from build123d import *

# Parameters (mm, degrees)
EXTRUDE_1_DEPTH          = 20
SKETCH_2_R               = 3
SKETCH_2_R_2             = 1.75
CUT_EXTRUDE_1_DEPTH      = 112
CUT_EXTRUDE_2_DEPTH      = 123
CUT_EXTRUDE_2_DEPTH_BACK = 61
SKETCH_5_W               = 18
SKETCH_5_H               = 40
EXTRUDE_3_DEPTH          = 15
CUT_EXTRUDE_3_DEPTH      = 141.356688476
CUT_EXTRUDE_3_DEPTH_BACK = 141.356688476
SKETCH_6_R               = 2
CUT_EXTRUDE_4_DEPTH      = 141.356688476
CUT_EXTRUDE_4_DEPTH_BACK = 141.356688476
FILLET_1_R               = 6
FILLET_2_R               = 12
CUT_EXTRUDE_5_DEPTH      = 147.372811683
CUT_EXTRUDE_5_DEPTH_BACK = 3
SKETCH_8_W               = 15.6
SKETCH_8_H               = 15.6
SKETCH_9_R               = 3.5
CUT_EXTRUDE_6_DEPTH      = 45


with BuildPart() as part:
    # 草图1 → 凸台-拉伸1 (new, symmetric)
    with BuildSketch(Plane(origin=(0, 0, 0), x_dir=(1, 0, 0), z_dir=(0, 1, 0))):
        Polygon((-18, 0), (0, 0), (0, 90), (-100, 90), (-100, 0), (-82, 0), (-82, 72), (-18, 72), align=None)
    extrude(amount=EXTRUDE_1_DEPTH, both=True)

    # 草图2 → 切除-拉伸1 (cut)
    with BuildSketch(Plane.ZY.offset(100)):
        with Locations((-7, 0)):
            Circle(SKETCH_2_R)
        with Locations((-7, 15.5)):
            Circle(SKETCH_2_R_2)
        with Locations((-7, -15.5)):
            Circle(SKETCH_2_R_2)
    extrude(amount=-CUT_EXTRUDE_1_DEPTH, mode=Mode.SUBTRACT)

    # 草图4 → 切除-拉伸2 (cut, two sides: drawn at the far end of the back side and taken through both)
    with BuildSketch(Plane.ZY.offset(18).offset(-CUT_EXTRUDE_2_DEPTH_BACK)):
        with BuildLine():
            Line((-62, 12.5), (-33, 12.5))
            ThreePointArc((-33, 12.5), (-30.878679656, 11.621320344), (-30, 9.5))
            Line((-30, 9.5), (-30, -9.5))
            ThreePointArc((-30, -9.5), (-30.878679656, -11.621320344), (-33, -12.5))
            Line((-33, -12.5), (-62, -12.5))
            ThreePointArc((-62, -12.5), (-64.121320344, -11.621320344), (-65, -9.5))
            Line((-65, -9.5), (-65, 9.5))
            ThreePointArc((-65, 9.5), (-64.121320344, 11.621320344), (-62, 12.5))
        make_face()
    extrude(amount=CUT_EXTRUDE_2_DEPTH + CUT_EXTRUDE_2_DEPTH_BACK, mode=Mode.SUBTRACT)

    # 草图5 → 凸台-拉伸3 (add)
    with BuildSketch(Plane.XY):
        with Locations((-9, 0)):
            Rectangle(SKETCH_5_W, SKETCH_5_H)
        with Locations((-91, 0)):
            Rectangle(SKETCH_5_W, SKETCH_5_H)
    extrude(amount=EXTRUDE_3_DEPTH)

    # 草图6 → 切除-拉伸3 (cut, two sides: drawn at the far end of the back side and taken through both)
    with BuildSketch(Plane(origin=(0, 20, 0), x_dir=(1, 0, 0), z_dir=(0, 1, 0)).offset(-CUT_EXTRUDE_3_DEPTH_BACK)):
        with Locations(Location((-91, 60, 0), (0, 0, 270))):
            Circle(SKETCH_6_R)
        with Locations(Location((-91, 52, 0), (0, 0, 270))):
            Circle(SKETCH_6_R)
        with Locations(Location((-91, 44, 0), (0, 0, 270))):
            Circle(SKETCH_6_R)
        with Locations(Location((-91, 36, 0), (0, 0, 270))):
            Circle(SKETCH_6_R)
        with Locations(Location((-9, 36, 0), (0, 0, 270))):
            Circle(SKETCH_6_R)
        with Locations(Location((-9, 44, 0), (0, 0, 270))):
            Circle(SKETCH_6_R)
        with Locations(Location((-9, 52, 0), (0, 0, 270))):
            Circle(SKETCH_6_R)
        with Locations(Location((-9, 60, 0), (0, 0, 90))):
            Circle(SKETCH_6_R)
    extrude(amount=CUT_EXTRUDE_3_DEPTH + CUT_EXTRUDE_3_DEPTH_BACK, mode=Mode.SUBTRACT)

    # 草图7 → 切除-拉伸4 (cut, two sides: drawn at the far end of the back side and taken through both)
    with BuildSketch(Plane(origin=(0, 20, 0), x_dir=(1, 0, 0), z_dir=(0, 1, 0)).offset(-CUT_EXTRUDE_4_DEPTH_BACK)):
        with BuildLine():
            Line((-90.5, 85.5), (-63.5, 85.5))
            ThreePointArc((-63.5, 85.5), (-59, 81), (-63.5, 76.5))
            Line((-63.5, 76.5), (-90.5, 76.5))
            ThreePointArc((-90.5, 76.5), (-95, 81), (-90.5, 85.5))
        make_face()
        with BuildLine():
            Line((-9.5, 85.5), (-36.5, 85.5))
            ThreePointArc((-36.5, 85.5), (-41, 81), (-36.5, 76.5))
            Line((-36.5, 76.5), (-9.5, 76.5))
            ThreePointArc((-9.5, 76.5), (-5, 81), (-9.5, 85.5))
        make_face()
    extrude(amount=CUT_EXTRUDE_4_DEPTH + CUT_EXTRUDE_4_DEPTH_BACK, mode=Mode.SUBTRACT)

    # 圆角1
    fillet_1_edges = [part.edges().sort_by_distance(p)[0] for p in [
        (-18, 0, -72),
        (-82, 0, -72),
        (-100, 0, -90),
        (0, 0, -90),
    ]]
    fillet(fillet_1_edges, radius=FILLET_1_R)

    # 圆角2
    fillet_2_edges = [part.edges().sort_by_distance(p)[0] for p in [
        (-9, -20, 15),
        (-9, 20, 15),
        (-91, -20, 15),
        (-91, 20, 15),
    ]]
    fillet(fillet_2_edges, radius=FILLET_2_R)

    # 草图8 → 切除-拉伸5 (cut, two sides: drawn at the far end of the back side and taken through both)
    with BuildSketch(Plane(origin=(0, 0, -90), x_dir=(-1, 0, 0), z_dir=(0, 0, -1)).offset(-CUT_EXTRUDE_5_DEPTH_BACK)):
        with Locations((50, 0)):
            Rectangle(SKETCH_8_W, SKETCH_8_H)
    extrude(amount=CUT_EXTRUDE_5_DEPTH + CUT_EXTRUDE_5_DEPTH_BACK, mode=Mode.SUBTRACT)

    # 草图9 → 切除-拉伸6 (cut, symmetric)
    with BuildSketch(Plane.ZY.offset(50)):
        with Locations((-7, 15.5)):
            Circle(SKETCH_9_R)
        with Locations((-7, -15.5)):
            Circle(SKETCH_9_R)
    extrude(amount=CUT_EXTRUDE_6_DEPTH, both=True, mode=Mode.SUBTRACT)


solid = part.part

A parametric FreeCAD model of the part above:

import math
import FreeCAD as App
import Part
import Sketcher
from FreeCAD import Vector


def edges_at(feature, points):
    """Names of the edges that pass closest to the given points."""
    edges = feature.Shape.Edges
    near = lambda p: min(range(len(edges)), key=lambda i: edges[i].distToShape(Part.Vertex(*p))[0])
    return sorted({f"Edge{near(p) + 1}" for p in points})

doc = App.newDocument("Part")
body = doc.addObject("PartDesign::Body", "Body")

sketch1 = body.newObject("Sketcher::SketchObject", "Sketch")
sketch1.AttachmentSupport = (doc.getObject("XZ_Plane"), [""])
sketch1.MapMode = "FlatFace"
sketch1.addGeometry(Part.LineSegment(Vector(-18, 0, 0), Vector(0, 0, 0)), False)
sketch1.addGeometry(Part.LineSegment(Vector(0, 0, 0), Vector(0, -90, 0)), False)
sketch1.addGeometry(Part.LineSegment(Vector(0, -90, 0), Vector(-100, -90, 0)), False)
sketch1.addGeometry(Part.LineSegment(Vector(-100, -90, 0), Vector(-100, 0, 0)), False)
sketch1.addGeometry(Part.LineSegment(Vector(-100, 0, 0), Vector(-82, 0, 0)), False)
sketch1.addGeometry(Part.LineSegment(Vector(-82, 0, 0), Vector(-82, -72, 0)), False)
sketch1.addGeometry(Part.LineSegment(Vector(-82, -72, 0), Vector(-18, -72, 0)), False)
sketch1.addGeometry(Part.LineSegment(Vector(-18, -72, 0), Vector(-18, 0, 0)), False)
sketch1.addConstraint(Sketcher.Constraint("Coincident", 0, 2, 1, 1))
sketch1.addConstraint(Sketcher.Constraint("Coincident", 1, 2, 2, 1))
sketch1.addConstraint(Sketcher.Constraint("Coincident", 2, 2, 3, 1))
sketch1.addConstraint(Sketcher.Constraint("Coincident", 3, 2, 4, 1))
sketch1.addConstraint(Sketcher.Constraint("Coincident", 4, 2, 5, 1))
sketch1.addConstraint(Sketcher.Constraint("Coincident", 5, 2, 6, 1))
sketch1.addConstraint(Sketcher.Constraint("Coincident", 6, 2, 7, 1))
sketch1.addConstraint(Sketcher.Constraint("Coincident", 7, 2, 0, 1))
sketch1.addConstraint(Sketcher.Constraint("Horizontal", 0))
sketch1.addConstraint(Sketcher.Constraint("Vertical", 1))
sketch1.addConstraint(Sketcher.Constraint("Horizontal", 2))
sketch1.addConstraint(Sketcher.Constraint("Vertical", 3))
sketch1.addConstraint(Sketcher.Constraint("Horizontal", 4))
sketch1.addConstraint(Sketcher.Constraint("Vertical", 5))
sketch1.addConstraint(Sketcher.Constraint("Horizontal", 6))
sketch1.addConstraint(Sketcher.Constraint("Vertical", 7))
sketch1.addConstraint(Sketcher.Constraint("Coincident", 0, 2, -1, 1))
sketch1.addConstraint(Sketcher.Constraint("PointOnObject", 3, 2, -1))
sketch1.addConstraint(Sketcher.Constraint("Equal", 0, 4))
sketch1.addConstraint(Sketcher.Constraint("DistanceX", 0, 1, 0, 2, 18.0))
sketch1.addConstraint(Sketcher.Constraint("DistanceX", 2, 2, 2, 1, 100.0))
sketch1.addConstraint(Sketcher.Constraint("DistanceY", 1, 2, 1, 1, 90.0))
sketch1.addConstraint(Sketcher.Constraint("DistanceY", 5, 2, 5, 1, 72.0))
pad1 = body.newObject("PartDesign::Pad", "Pad")
pad1.Profile = sketch1
pad1.Length = 40
pad1.Midplane = True

sketch2 = body.newObject("Sketcher::SketchObject", "Sketch001")
sketch2.AttachmentSupport = (doc.getObject("YZ_Plane"), [""])
sketch2.MapMode = "FlatFace"
sketch2.AttachmentOffset = App.Placement(Vector(0, 0, -100), App.Rotation())
sketch2.addGeometry(Part.Circle(Vector(0, -7, 0), Vector(0, 0, 1), 3), False)
sketch2.addGeometry(Part.Circle(Vector(15.5, -7, 0), Vector(0, 0, 1), 1.8), False)
sketch2.addGeometry(Part.Circle(Vector(-15.5, -7, 0), Vector(0, 0, 1), 1.8), False)
sketch2.addConstraint(Sketcher.Constraint("Equal", 1, 2))
sketch2.addConstraint(Sketcher.Constraint("Symmetric", 1, 3, 2, 3, -2))
sketch2.addConstraint(Sketcher.Constraint("PointOnObject", 0, 3, -2))
sketch2.addConstraint(Sketcher.Constraint("Horizontal", 0, 3, 1, 3))
sketch2.addConstraint(Sketcher.Constraint("Diameter", 0, 6.0))
sketch2.addConstraint(Sketcher.Constraint("Diameter", 1, 3.5))
sketch2.addConstraint(Sketcher.Constraint("DistanceY", 0, 3, -1, 1, 7.0))
sketch2.addConstraint(Sketcher.Constraint("DistanceX", 2, 3, 1, 3, 31.0))
pocket1 = body.newObject("PartDesign::Pocket", "Pocket")
pocket1.Profile = sketch2
pocket1.Length = 112
pocket1.Reversed = True

sketch3 = body.newObject("Sketcher::SketchObject", "Sketch002")
sketch3.AttachmentSupport = (doc.getObject("YZ_Plane"), [""])
sketch3.MapMode = "FlatFace"
sketch3.AttachmentOffset = App.Placement(Vector(0, 0, -18), App.Rotation())
sketch3.addGeometry(Part.LineSegment(Vector(12.5, -33, 0), Vector(12.5, -62, 0)), False)
sketch3.addGeometry(Part.ArcOfCircle(Part.Circle(Vector(9.5, -62, 0), Vector(0, 0, 1), 3), math.radians(-90), math.radians(0)), False)
sketch3.addGeometry(Part.LineSegment(Vector(9.5, -65, 0), Vector(-9.5, -65, 0)), False)
sketch3.addGeometry(Part.ArcOfCircle(Part.Circle(Vector(-9.5, -62, 0), Vector(0, 0, 1), 3), math.radians(180), math.radians(270)), False)
sketch3.addGeometry(Part.LineSegment(Vector(-12.5, -62, 0), Vector(-12.5, -33, 0)), False)
sketch3.addGeometry(Part.ArcOfCircle(Part.Circle(Vector(-9.5, -33, 0), Vector(0, 0, 1), 3), math.radians(90), math.radians(180)), False)
sketch3.addGeometry(Part.LineSegment(Vector(-9.5, -30, 0), Vector(9.5, -30, 0)), False)
sketch3.addGeometry(Part.ArcOfCircle(Part.Circle(Vector(9.5, -33, 0), Vector(0, 0, 1), 3), math.radians(0), math.radians(90)), False)
sketch3.addConstraint(Sketcher.Constraint("Tangent", 0, 2, 1, 2))
sketch3.addConstraint(Sketcher.Constraint("Tangent", 1, 1, 2, 1))
sketch3.addConstraint(Sketcher.Constraint("Tangent", 2, 2, 3, 2))
sketch3.addConstraint(Sketcher.Constraint("Tangent", 3, 1, 4, 1))
sketch3.addConstraint(Sketcher.Constraint("Tangent", 4, 2, 5, 2))
sketch3.addConstraint(Sketcher.Constraint("Tangent", 5, 1, 6, 1))
sketch3.addConstraint(Sketcher.Constraint("Tangent", 6, 2, 7, 2))
sketch3.addConstraint(Sketcher.Constraint("Tangent", 7, 1, 0, 1))
sketch3.addConstraint(Sketcher.Constraint("Vertical", 0))
sketch3.addConstraint(Sketcher.Constraint("Horizontal", 2))
sketch3.addConstraint(Sketcher.Constraint("Vertical", 4))
sketch3.addConstraint(Sketcher.Constraint("Horizontal", 6))
sketch3.addConstraint(Sketcher.Constraint("Equal", 1, 3))
sketch3.addConstraint(Sketcher.Constraint("Equal", 3, 5))
sketch3.addConstraint(Sketcher.Constraint("Equal", 5, 7))
sketch3.addConstraint(Sketcher.Constraint("Radius", 1, 3.0))
sketch3.addConstraint(Sketcher.Constraint("DistanceX", 2, 2, 2, 1, 19.0))
sketch3.addConstraint(Sketcher.Constraint("DistanceY", 0, 2, 0, 1, 29.0))
sketch3.addConstraint(Sketcher.Constraint("DistanceY", 1, 3, -1, 1, 62.0))
sketch3.addConstraint(Sketcher.Constraint("DistanceX", -1, 1, 1, 3, 9.5))
pocket2 = body.newObject("PartDesign::Pocket", "Pocket001")
pocket2.Profile = sketch3
pocket2.Type = "ThroughAll"
pocket2.Midplane = True

sketch4 = body.newObject("Sketcher::SketchObject", "Sketch003")
sketch4.AttachmentSupport = (doc.getObject("XY_Plane"), [""])
sketch4.MapMode = "FlatFace"
sketch4.addGeometry(Part.LineSegment(Vector(-18, 20, 0), Vector(-18, -20, 0)), False)
sketch4.addGeometry(Part.LineSegment(Vector(-18, -20, 0), Vector(0, -20, 0)), False)
sketch4.addGeometry(Part.LineSegment(Vector(0, -20, 0), Vector(0, 20, 0)), False)
sketch4.addGeometry(Part.LineSegment(Vector(0, 20, 0), Vector(-18, 20, 0)), False)
sketch4.addGeometry(Part.LineSegment(Vector(-100, 20, 0), Vector(-100, -20, 0)), False)
sketch4.addGeometry(Part.LineSegment(Vector(-100, -20, 0), Vector(-82, -20, 0)), False)
sketch4.addGeometry(Part.LineSegment(Vector(-82, -20, 0), Vector(-82, 20, 0)), False)
sketch4.addGeometry(Part.LineSegment(Vector(-82, 20, 0), Vector(-100, 20, 0)), False)
sketch4.addConstraint(Sketcher.Constraint("Coincident", 0, 2, 1, 1))
sketch4.addConstraint(Sketcher.Constraint("Coincident", 1, 2, 2, 1))
sketch4.addConstraint(Sketcher.Constraint("Coincident", 2, 2, 3, 1))
sketch4.addConstraint(Sketcher.Constraint("Coincident", 3, 2, 0, 1))
sketch4.addConstraint(Sketcher.Constraint("Coincident", 4, 2, 5, 1))
sketch4.addConstraint(Sketcher.Constraint("Coincident", 5, 2, 6, 1))
sketch4.addConstraint(Sketcher.Constraint("Coincident", 6, 2, 7, 1))
sketch4.addConstraint(Sketcher.Constraint("Coincident", 7, 2, 4, 1))
sketch4.addConstraint(Sketcher.Constraint("Vertical", 0))
sketch4.addConstraint(Sketcher.Constraint("Horizontal", 1))
sketch4.addConstraint(Sketcher.Constraint("Vertical", 2))
sketch4.addConstraint(Sketcher.Constraint("Horizontal", 3))
sketch4.addConstraint(Sketcher.Constraint("Vertical", 4))
sketch4.addConstraint(Sketcher.Constraint("Horizontal", 5))
sketch4.addConstraint(Sketcher.Constraint("Vertical", 6))
sketch4.addConstraint(Sketcher.Constraint("Horizontal", 7))
sketch4.addConstraint(Sketcher.Constraint("Symmetric", 1, 2, 2, 2, -1, 1))
sketch4.addConstraint(Sketcher.Constraint("Horizontal", 1, 2, 4, 2))
sketch4.addConstraint(Sketcher.Constraint("Horizontal", 3, 2, 6, 2))
sketch4.addConstraint(Sketcher.Constraint("Equal", 3, 5))
sketch4.addConstraint(Sketcher.Constraint("DistanceX", 1, 1, 1, 2, 18.0))
sketch4.addConstraint(Sketcher.Constraint("DistanceY", 0, 2, 0, 1, 40.0))
sketch4.addConstraint(Sketcher.Constraint("DistanceX", 4, 2, -1, 1, 100.0))
pad2 = body.newObject("PartDesign::Pad", "Pad001")
pad2.Profile = sketch4
pad2.Length = 15

sketch5 = body.newObject("Sketcher::SketchObject", "Sketch004")
sketch5.AttachmentSupport = (doc.getObject("XZ_Plane"), [""])
sketch5.MapMode = "FlatFace"
sketch5.AttachmentOffset = App.Placement(Vector(0, 0, -20), App.Rotation())
sketch5.addGeometry(Part.Circle(Vector(-91, -60, 0), Vector(0, 0, 1), 2), False)
sketch5.addGeometry(Part.Circle(Vector(-91, -52, 0), Vector(0, 0, 1), 2), False)
sketch5.addGeometry(Part.Circle(Vector(-91, -44, 0), Vector(0, 0, 1), 2), False)
sketch5.addGeometry(Part.Circle(Vector(-91, -36, 0), Vector(0, 0, 1), 2), False)
sketch5.addGeometry(Part.Circle(Vector(-9, -36, 0), Vector(0, 0, 1), 2), False)
sketch5.addGeometry(Part.Circle(Vector(-9, -44, 0), Vector(0, 0, 1), 2), False)
sketch5.addGeometry(Part.Circle(Vector(-9, -52, 0), Vector(0, 0, 1), 2), False)
sketch5.addGeometry(Part.Circle(Vector(-9, -60, 0), Vector(0, 0, 1), 2), False)
sketch5.addConstraint(Sketcher.Constraint("Equal", 0, 1))
sketch5.addConstraint(Sketcher.Constraint("Equal", 1, 2))
sketch5.addConstraint(Sketcher.Constraint("Equal", 2, 3))
sketch5.addConstraint(Sketcher.Constraint("Equal", 3, 4))
sketch5.addConstraint(Sketcher.Constraint("Equal", 4, 5))
sketch5.addConstraint(Sketcher.Constraint("Equal", 5, 6))
sketch5.addConstraint(Sketcher.Constraint("Equal", 6, 7))
sketch5.addConstraint(Sketcher.Constraint("Horizontal", 3, 3, 4, 3))
sketch5.addConstraint(Sketcher.Constraint("Horizontal", 2, 3, 5, 3))
sketch5.addConstraint(Sketcher.Constraint("Horizontal", 1, 3, 6, 3))
sketch5.addConstraint(Sketcher.Constraint("Horizontal", 0, 3, 7, 3))
sketch5.addConstraint(Sketcher.Constraint("Vertical", 0, 3, 1, 3))
sketch5.addConstraint(Sketcher.Constraint("Vertical", 1, 3, 2, 3))
sketch5.addConstraint(Sketcher.Constraint("Vertical", 2, 3, 3, 3))
sketch5.addConstraint(Sketcher.Constraint("Vertical", 4, 3, 5, 3))
sketch5.addConstraint(Sketcher.Constraint("Vertical", 5, 3, 6, 3))
sketch5.addConstraint(Sketcher.Constraint("Vertical", 6, 3, 7, 3))
sketch5.addConstraint(Sketcher.Constraint("Diameter", 0, 4.0))
sketch5.addConstraint(Sketcher.Constraint("DistanceX", 0, 3, -1, 1, 91.0))
sketch5.addConstraint(Sketcher.Constraint("DistanceY", 0, 3, -1, 1, 60.0))
sketch5.addConstraint(Sketcher.Constraint("DistanceY", 1, 3, -1, 1, 52.0))
sketch5.addConstraint(Sketcher.Constraint("DistanceY", 2, 3, -1, 1, 44.0))
sketch5.addConstraint(Sketcher.Constraint("DistanceY", 3, 3, -1, 1, 36.0))
sketch5.addConstraint(Sketcher.Constraint("DistanceX", 4, 3, -1, 1, 9.0))
pocket3 = body.newObject("PartDesign::Pocket", "Pocket002")
pocket3.Profile = sketch5
pocket3.Type = "ThroughAll"
pocket3.Midplane = True

sketch6 = body.newObject("Sketcher::SketchObject", "Sketch005")
sketch6.AttachmentSupport = (doc.getObject("XZ_Plane"), [""])
sketch6.MapMode = "FlatFace"
sketch6.AttachmentOffset = App.Placement(Vector(0, 0, -20), App.Rotation())
sketch6.addGeometry(Part.LineSegment(Vector(-63.5, -85.5, 0), Vector(-90.5, -85.5, 0)), False)
sketch6.addGeometry(Part.ArcOfCircle(Part.Circle(Vector(-90.5, -81, 0), Vector(0, 0, 1), 4.5), math.radians(90), math.radians(270)), False)
sketch6.addGeometry(Part.LineSegment(Vector(-90.5, -76.5, 0), Vector(-63.5, -76.5, 0)), False)
sketch6.addGeometry(Part.ArcOfCircle(Part.Circle(Vector(-63.5, -81, 0), Vector(0, 0, 1), 4.5), math.radians(-90), math.radians(90)), False)
sketch6.addGeometry(Part.LineSegment(Vector(-9.5, -85.5, 0), Vector(-36.5, -85.5, 0)), False)
sketch6.addGeometry(Part.ArcOfCircle(Part.Circle(Vector(-36.5, -81, 0), Vector(0, 0, 1), 4.5), math.radians(90), math.radians(270)), False)
sketch6.addGeometry(Part.LineSegment(Vector(-36.5, -76.5, 0), Vector(-9.5, -76.5, 0)), False)
sketch6.addGeometry(Part.ArcOfCircle(Part.Circle(Vector(-9.5, -81, 0), Vector(0, 0, 1), 4.5), math.radians(-90), math.radians(90)), False)
sketch6.addConstraint(Sketcher.Constraint("Tangent", 0, 2, 1, 2))
sketch6.addConstraint(Sketcher.Constraint("Tangent", 1, 1, 2, 1))
sketch6.addConstraint(Sketcher.Constraint("Tangent", 2, 2, 3, 2))
sketch6.addConstraint(Sketcher.Constraint("Tangent", 3, 1, 0, 1))
sketch6.addConstraint(Sketcher.Constraint("Tangent", 4, 2, 5, 2))
sketch6.addConstraint(Sketcher.Constraint("Tangent", 5, 1, 6, 1))
sketch6.addConstraint(Sketcher.Constraint("Tangent", 6, 2, 7, 2))
sketch6.addConstraint(Sketcher.Constraint("Tangent", 7, 1, 4, 1))
sketch6.addConstraint(Sketcher.Constraint("Horizontal", 0))
sketch6.addConstraint(Sketcher.Constraint("Horizontal", 2))
sketch6.addConstraint(Sketcher.Constraint("Horizontal", 4))
sketch6.addConstraint(Sketcher.Constraint("Horizontal", 6))
sketch6.addConstraint(Sketcher.Constraint("Equal", 3, 5))
sketch6.addConstraint(Sketcher.Constraint("Horizontal", 3, 3, 5, 3))
sketch6.addConstraint(Sketcher.Constraint("Equal", 2, 4))
sketch6.addConstraint(Sketcher.Constraint("Radius", 1, 4.5))
sketch6.addConstraint(Sketcher.Constraint("DistanceX", 0, 2, 0, 1, 27.0))
sketch6.addConstraint(Sketcher.Constraint("DistanceY", 1, 3, -1, 1, 81.0))
sketch6.addConstraint(Sketcher.Constraint("DistanceX", 3, 3, 5, 3, 27.0))
sketch6.addConstraint(Sketcher.Constraint("DistanceX", 1, 3, -1, 1, 90.5))
pocket4 = body.newObject("PartDesign::Pocket", "Pocket003")
pocket4.Profile = sketch6
pocket4.Type = "ThroughAll"
pocket4.Midplane = True
doc.recompute()

fillet = body.newObject("PartDesign::Fillet", "Fillet")
fillet.Base = (pocket4, edges_at(pocket4, [
    (-18, 0, -72),
    (-82, 0, -72),
    (-100, 0, -90),
    (0, 0, -90),
]))
fillet.Radius = 6
doc.recompute()

fillet2 = body.newObject("PartDesign::Fillet", "Fillet001")
fillet2.Base = (fillet, edges_at(fillet, [
    (-9, -20, 15),
    (-9, 20, 15),
    (-91, -20, 15),
    (-91, 20, 15),
]))
fillet2.Radius = 12

sketch7 = body.newObject("Sketcher::SketchObject", "Sketch006")
sketch7.AttachmentSupport = (doc.getObject("XY_Plane"), [""])
sketch7.MapMode = "FlatFace"
sketch7.AttachmentOffset = App.Placement(Vector(0, 0, -90), App.Rotation())
sketch7.addGeometry(Part.LineSegment(Vector(-42, 8, 0), Vector(-42, -8, 0)), False)
sketch7.addGeometry(Part.LineSegment(Vector(-42, -8, 0), Vector(-58, -8, 0)), False)
sketch7.addGeometry(Part.LineSegment(Vector(-58, -8, 0), Vector(-58, 8, 0)), False)
sketch7.addGeometry(Part.LineSegment(Vector(-58, 8, 0), Vector(-42, 8, 0)), False)
sketch7.addConstraint(Sketcher.Constraint("Coincident", 0, 2, 1, 1))
sketch7.addConstraint(Sketcher.Constraint("Coincident", 1, 2, 2, 1))
sketch7.addConstraint(Sketcher.Constraint("Coincident", 2, 2, 3, 1))
sketch7.addConstraint(Sketcher.Constraint("Coincident", 3, 2, 0, 1))
sketch7.addConstraint(Sketcher.Constraint("Vertical", 0))
sketch7.addConstraint(Sketcher.Constraint("Horizontal", 1))
sketch7.addConstraint(Sketcher.Constraint("Vertical", 2))
sketch7.addConstraint(Sketcher.Constraint("Horizontal", 3))
sketch7.addConstraint(Sketcher.Constraint("Equal", 3, 0))
sketch7.addConstraint(Sketcher.Constraint("DistanceX", 1, 2, 1, 1, 15.6))
sketch7.addConstraint(Sketcher.Constraint("DistanceX", 0, 2, -1, 1, 42.2))
sketch7.addConstraint(Sketcher.Constraint("DistanceY", 0, 2, -1, 1, 7.8))
pocket5 = body.newObject("PartDesign::Pocket", "Pocket004")
pocket5.Profile = sketch7
pocket5.Type = "TwoLengths"
pocket5.Length = 147.372812
pocket5.Length2 = 3

sketch8 = body.newObject("Sketcher::SketchObject", "Sketch007")
sketch8.AttachmentSupport = (doc.getObject("YZ_Plane"), [""])
sketch8.MapMode = "FlatFace"
sketch8.AttachmentOffset = App.Placement(Vector(0, 0, -50), App.Rotation())
sketch8.addGeometry(Part.Circle(Vector(15.5, -7, 0), Vector(0, 0, 1), 3.5), False)
sketch8.addGeometry(Part.Circle(Vector(-15.5, -7, 0), Vector(0, 0, 1), 3.5), False)
sketch8.addConstraint(Sketcher.Constraint("Equal", 0, 1))
sketch8.addConstraint(Sketcher.Constraint("Symmetric", 0, 3, 1, 3, -2))
sketch8.addConstraint(Sketcher.Constraint("Diameter", 0, 7.0))
sketch8.addConstraint(Sketcher.Constraint("DistanceY", 0, 3, -1, 1, 7.0))
sketch8.addConstraint(Sketcher.Constraint("DistanceX", 1, 3, 0, 3, 31.0))
pocket6 = body.newObject("PartDesign::Pocket", "Pocket005")
pocket6.Profile = sketch8
pocket6.Length = 90
pocket6.Midplane = True

doc.recompute()
